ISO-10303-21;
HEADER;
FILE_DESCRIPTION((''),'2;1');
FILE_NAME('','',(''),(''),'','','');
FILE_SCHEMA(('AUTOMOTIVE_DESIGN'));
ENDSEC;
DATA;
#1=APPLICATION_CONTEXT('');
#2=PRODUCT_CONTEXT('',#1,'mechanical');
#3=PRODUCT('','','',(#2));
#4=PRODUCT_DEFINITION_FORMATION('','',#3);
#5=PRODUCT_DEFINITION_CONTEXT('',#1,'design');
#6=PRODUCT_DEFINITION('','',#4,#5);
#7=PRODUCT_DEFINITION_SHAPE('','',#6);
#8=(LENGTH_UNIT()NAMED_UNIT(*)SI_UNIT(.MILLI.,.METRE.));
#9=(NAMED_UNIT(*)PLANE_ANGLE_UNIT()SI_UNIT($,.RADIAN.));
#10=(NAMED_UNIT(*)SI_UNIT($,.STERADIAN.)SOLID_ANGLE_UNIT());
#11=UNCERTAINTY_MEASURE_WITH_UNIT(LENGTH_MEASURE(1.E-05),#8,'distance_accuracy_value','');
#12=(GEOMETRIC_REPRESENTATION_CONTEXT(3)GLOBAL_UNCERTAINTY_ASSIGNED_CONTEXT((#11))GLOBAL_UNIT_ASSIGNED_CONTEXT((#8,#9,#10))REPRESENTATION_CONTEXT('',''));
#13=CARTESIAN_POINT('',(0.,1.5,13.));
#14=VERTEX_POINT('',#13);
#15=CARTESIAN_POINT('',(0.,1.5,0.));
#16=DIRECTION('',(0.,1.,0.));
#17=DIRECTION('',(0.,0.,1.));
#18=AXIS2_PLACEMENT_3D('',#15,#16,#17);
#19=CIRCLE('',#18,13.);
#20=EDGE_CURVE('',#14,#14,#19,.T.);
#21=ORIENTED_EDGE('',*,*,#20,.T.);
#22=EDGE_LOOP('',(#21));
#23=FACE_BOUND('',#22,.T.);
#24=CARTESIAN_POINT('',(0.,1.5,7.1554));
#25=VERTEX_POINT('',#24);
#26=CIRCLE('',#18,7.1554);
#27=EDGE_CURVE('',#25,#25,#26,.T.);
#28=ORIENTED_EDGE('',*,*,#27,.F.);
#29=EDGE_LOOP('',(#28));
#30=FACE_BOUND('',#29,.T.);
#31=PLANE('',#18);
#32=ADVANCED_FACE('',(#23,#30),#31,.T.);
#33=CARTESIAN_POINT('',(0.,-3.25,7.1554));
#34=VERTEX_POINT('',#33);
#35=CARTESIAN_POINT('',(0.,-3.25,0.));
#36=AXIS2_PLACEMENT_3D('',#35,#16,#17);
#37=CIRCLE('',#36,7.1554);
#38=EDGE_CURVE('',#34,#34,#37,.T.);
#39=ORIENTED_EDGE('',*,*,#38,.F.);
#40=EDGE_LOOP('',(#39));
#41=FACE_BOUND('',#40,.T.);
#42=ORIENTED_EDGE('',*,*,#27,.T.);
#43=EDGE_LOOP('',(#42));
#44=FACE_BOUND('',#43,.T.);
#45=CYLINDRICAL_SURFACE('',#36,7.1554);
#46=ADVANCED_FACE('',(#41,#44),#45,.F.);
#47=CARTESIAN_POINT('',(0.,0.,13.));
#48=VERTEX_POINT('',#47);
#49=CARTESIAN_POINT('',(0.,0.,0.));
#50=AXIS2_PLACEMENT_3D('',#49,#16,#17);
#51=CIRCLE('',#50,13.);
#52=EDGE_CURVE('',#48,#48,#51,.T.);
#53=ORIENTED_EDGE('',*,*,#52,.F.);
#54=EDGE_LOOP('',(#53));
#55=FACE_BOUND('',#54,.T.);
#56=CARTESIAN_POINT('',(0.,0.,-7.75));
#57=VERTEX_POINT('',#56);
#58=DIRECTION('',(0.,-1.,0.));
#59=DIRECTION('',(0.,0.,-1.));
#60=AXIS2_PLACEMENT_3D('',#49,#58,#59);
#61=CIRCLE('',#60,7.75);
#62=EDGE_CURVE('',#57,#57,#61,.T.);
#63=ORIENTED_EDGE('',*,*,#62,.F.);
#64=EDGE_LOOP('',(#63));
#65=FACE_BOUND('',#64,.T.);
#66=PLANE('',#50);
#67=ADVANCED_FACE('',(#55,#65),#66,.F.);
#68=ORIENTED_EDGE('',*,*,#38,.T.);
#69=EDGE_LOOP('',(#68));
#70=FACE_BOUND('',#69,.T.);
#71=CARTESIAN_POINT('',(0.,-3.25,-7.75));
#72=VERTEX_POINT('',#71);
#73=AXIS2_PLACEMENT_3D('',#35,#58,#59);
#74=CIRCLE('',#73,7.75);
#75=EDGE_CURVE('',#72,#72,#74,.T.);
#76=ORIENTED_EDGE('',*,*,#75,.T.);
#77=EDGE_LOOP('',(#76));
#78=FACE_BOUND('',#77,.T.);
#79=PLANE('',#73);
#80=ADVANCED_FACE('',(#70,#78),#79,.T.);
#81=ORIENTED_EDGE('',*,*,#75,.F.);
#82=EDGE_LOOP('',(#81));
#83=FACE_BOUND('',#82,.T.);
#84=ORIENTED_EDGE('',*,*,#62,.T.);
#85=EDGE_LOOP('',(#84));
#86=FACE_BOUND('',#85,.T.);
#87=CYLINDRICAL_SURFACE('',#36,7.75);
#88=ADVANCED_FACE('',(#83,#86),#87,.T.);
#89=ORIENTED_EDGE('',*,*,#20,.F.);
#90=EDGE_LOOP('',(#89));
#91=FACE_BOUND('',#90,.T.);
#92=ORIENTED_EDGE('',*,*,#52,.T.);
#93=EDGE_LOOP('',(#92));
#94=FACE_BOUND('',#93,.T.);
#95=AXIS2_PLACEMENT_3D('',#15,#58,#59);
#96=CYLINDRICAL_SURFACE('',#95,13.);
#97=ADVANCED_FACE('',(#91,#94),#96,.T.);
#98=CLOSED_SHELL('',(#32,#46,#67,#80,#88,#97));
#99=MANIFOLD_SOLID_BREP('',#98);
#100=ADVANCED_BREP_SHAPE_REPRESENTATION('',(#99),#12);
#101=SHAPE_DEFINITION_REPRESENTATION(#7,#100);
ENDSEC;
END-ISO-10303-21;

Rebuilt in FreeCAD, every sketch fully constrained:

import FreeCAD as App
import Part
import Sketcher
from FreeCAD import Vector

doc = App.newDocument("Part")
params = doc.addObject("Spreadsheet::Sheet", "Params")
for row, (alias, value) in enumerate([
    ("sketch1_diameter", "26 mm"),
    ("pad1_length", "1.5 mm"),
    ("sketch2_diameter", "15.5 mm"),
    ("pad2_length", "3.25 mm"),
], start=1):
    params.set(f"A{row}", alias)
    params.set(f"B{row}", "=" + value)
    params.setAlias(f"B{row}", alias)

body = doc.addObject("PartDesign::Body", "Body")

# Sketch on XZ plane
sketch1 = body.newObject("Sketcher::SketchObject", "Sketch")
sketch1.AttachmentSupport = (doc.getObject("XZ_Plane"), [""])
sketch1.MapMode = "FlatFace"
sketch1.addGeometry(Part.Circle(Vector(0, 0, 0), Vector(0, 0, 1), 13), False)
sketch1.addConstraint(Sketcher.Constraint("Coincident", 0, 3, -1, 1))
sketch1.addConstraint(Sketcher.Constraint("Diameter", 0, 26.0))
sketch1.setExpression("Constraints[1]", "Params.sketch1_diameter")
pad1 = body.newObject("PartDesign::Pad", "Pad")
pad1.Profile = sketch1
pad1.setExpression("Length", "Params.pad1_length")
pad1.Reversed = True

# Sketch on XZ plane
sketch2 = body.newObject("Sketcher::SketchObject", "Sketch001")
sketch2.AttachmentSupport = (doc.getObject("XZ_Plane"), [""])
sketch2.MapMode = "FlatFace"
sketch2.addGeometry(Part.Circle(Vector(0, 0, 0), Vector(0, 0, 1), 7.75), False)
sketch2.addConstraint(Sketcher.Constraint("Coincident", 0, 3, -1, 1))
sketch2.addConstraint(Sketcher.Constraint("Diameter", 0, 15.5))
sketch2.setExpression("Constraints[1]", "Params.sketch2_diameter")
pad2 = body.newObject("PartDesign::Pad", "Pad001")
pad2.Profile = sketch2
pad2.setExpression("Length", "Params.pad2_length")

# Sketch on XZ plane
sketch3 = body.newObject("Sketcher::SketchObject", "Sketch002")
sketch3.AttachmentSupport = (doc.getObject("XZ_Plane"), [""])
sketch3.MapMode = "FlatFace"
sketch3.AttachmentOffset = App.Placement(Vector(0, 0, -1.5), App.Rotation())
sketch3.addGeometry(Part.Circle(Vector(0, 0, 0), Vector(0, 0, 1), 7.1554), False)
sketch3.addConstraint(Sketcher.Constraint("Coincident", 0, 3, -1, 1))
sketch3.addConstraint(Sketcher.Constraint("Diameter", 0, 14.3108))
pocket1 = body.newObject("PartDesign::Pocket", "Pocket")
pocket1.Profile = sketch3
pocket1.Type = "ThroughAll"
pocket1.Reversed = True

doc.recompute()
